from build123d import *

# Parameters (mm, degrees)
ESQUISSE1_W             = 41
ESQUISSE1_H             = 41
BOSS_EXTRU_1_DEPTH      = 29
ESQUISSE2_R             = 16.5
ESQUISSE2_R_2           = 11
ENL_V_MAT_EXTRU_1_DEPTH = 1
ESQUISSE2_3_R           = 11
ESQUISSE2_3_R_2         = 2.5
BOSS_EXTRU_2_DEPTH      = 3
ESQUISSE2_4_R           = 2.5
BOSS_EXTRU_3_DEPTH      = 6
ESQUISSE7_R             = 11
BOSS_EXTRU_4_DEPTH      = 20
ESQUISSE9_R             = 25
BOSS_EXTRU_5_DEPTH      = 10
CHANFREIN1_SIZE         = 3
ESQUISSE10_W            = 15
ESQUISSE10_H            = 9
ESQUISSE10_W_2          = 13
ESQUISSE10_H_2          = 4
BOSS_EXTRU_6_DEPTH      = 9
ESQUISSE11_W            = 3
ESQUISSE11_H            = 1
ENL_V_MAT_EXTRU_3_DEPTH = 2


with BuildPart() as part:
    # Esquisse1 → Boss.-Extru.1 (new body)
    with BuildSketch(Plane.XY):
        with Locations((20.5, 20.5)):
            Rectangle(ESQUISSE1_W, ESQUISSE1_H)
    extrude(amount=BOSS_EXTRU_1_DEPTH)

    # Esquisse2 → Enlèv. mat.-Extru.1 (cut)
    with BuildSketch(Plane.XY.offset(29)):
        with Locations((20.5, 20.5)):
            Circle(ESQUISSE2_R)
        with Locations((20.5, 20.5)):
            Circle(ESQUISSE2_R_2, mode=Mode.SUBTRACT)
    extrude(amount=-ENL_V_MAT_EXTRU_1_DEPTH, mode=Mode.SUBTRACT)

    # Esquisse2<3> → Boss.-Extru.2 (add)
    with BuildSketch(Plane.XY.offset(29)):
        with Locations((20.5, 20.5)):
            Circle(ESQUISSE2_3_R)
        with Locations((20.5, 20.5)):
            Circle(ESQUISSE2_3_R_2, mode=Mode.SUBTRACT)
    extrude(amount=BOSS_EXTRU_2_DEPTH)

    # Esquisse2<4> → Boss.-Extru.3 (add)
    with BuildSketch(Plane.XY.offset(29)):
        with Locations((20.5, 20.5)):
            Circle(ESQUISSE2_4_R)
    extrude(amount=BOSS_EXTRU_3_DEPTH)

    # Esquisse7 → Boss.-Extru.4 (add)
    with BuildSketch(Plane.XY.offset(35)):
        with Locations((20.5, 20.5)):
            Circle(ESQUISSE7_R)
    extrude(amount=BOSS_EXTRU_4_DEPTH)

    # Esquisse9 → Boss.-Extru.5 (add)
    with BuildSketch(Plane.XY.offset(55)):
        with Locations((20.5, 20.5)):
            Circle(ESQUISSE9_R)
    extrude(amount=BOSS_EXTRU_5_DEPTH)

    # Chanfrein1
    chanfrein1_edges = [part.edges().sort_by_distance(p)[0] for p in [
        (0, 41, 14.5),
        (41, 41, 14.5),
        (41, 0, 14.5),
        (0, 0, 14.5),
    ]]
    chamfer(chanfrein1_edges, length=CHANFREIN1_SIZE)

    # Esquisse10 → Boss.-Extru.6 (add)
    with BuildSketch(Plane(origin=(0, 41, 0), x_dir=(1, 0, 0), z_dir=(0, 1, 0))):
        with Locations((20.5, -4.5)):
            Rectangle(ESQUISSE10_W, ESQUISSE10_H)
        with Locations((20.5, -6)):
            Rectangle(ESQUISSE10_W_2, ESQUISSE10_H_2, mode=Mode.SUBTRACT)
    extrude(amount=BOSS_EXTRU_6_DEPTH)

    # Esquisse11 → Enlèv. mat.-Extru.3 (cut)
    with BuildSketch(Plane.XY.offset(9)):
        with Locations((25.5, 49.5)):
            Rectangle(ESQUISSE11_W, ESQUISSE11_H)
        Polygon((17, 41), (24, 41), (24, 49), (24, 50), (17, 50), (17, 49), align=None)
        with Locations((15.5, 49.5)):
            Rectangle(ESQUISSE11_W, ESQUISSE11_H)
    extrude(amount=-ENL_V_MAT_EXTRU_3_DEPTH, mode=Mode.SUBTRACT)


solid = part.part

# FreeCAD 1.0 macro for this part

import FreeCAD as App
import Part
import Sketcher
Q = App.Units.Quantity


def edges_at(feature, points):
    """Names of the edges that pass closest to the given points."""
    edges = feature.Shape.Edges
    near = lambda p: min(range(len(edges)), key=lambda i: edges[i].distToShape(Part.Vertex(*p))[0])
    return sorted({f"Edge{near(p) + 1}" for p in points})


def add_polygon(sketch, points):
    """Adds a closed chain of lines whose ends are joined by coincident constraints."""
    first, n = sketch.GeometryCount, len(points)
    for a, b in zip(points, points[1:] + points[:1]):
        sketch.addGeometry(Part.LineSegment(App.Vector(*a, 0), App.Vector(*b, 0)), False)
    for i in range(n):
        sketch.addConstraint(Sketcher.Constraint("Coincident", first + i, 2, first + (i + 1) % n, 1))

doc = App.newDocument("Part")
params = doc.addObject("Spreadsheet::Sheet", "Params")
for row, (alias, value) in enumerate([
    ("sketch1_width", "41 mm"),
    ("pad1_length", "29 mm"),
    ("sketch2_diameter", "33 mm"),
    ("sketch2_diameter2", "22 mm"),
    ("pocket1_length", "1 mm"),
    ("sketch3_diameter", "22 mm"),
    ("sketch3_diameter2", "5 mm"),
    ("pad2_length", "3 mm"),
    ("sketch4_diameter", "5 mm"),
    ("pad3_length", "6 mm"),
    ("sketch5_diameter", "22 mm"),
    ("pad4_length", "20 mm"),
    ("sketch6_diameter", "50 mm"),
    ("pad5_length", "10 mm"),
    ("chamfer_size", "3 mm"),
    ("sketch7_width", "15 mm"),
    ("sketch7_width2", "13 mm"),
    ("sketch7_height", "9 mm"),
    ("sketch7_height2", "4 mm"),
    ("pad6_length", "9 mm"),
    ("sketch8_width", "3 mm"),
    ("sketch8_width2", "13 mm"),
    ("sketch8_height", "1 mm"),
    ("sketch8_height2", "8 mm"),
    ("pocket2_length", "2 mm"),
], start=1):
    params.set(f"A{row}", alias)
    params.set(f"B{row}", "=" + value)
    params.setAlias(f"B{row}", alias)

body = doc.addObject("PartDesign::Body", "Body")

# Sketch on XY plane
sketch1 = body.newObject("Sketcher::SketchObject", "Sketch")
sketch1.AttachmentSupport = (doc.getObject("XY_Plane"), [""])
sketch1.MapMode = "FlatFace"
add_polygon(sketch1, [(0, 41), (0, 0), (41, 0), (41, 41)])  # lines 0-3
sketch1.addConstraint(Sketcher.Constraint("Vertical", 0))
sketch1.addConstraint(Sketcher.Constraint("Horizontal", 1))
sketch1.addConstraint(Sketcher.Constraint("Vertical", 2))
sketch1.addConstraint(Sketcher.Constraint("Horizontal", 3))
sketch1.addConstraint(Sketcher.Constraint("Coincident", 0, 2, -1, 1))
sketch1.addConstraint(Sketcher.Constraint("Equal", 3, 0))
sketch1.addConstraint(Sketcher.Constraint("DistanceX", 1, 1, 1, 2, Q("41 mm")))
sketch1.setExpression("Constraints[10]", "Params.sketch1_width")
pad1 = body.newObject("PartDesign::Pad", "Pad")
pad1.Profile = sketch1
pad1.setExpression("Length", "Params.pad1_length")

# Sketch on XY plane
sketch2 = body.newObject("Sketcher::SketchObject", "Sketch001")
sketch2.AttachmentSupport = (doc.getObject("XY_Plane"), [""])
sketch2.MapMode = "FlatFace"
sketch2.AttachmentOffset = App.Placement(App.Vector(0, 0, 29), App.Rotation())
sketch2.addGeometry(Part.Circle(App.Vector(20, 20, 0), App.Vector(0, 0, 1), 16), False)
sketch2.addGeometry(Part.Circle(App.Vector(20, 20, 0), App.Vector(0, 0, 1), 11), False)
sketch2.addConstraint(Sketcher.Constraint("Coincident", 1, 3, 0, 3))
sketch2.addConstraint(Sketcher.Constraint("Diameter", 0, Q("33 mm")))
sketch2.addConstraint(Sketcher.Constraint("Diameter", 1, Q("22 mm")))
sketch2.addConstraint(Sketcher.Constraint("DistanceX", -1, 1, 0, 3, Q("20.5 mm")))
sketch2.addConstraint(Sketcher.Constraint("DistanceY", -1, 1, 0, 3, Q("20.5 mm")))
sketch2.setExpression("Constraints[1]", "Params.sketch2_diameter")
sketch2.setExpression("Constraints[2]", "Params.sketch2_diameter2")
pocket1 = body.newObject("PartDesign::Pocket", "Pocket")
pocket1.Profile = sketch2
pocket1.setExpression("Length", "Params.pocket1_length")

# Sketch on XY plane
sketch3 = body.newObject("Sketcher::SketchObject", "Sketch002")
sketch3.AttachmentSupport = (doc.getObject("XY_Plane"), [""])
sketch3.MapMode = "FlatFace"
sketch3.AttachmentOffset = App.Placement(App.Vector(0, 0, 29), App.Rotation())
sketch3.addGeometry(Part.Circle(App.Vector(20.5, 20.5, 0), App.Vector(0, 0, 1), 11), False)
sketch3.addGeometry(Part.Circle(App.Vector(20.5, 20.5, 0), App.Vector(0, 0, 1), 2.5), False)
sketch3.addConstraint(Sketcher.Constraint("Coincident", 1, 3, 0, 3))
sketch3.addConstraint(Sketcher.Constraint("Diameter", 0, Q("22 mm")))
sketch3.addConstraint(Sketcher.Constraint("Diameter", 1, Q("5 mm")))
sketch3.addConstraint(Sketcher.Constraint("DistanceX", -1, 1, 0, 3, Q("20.5 mm")))
sketch3.addConstraint(Sketcher.Constraint("DistanceY", -1, 1, 0, 3, Q("20.5 mm")))
sketch3.setExpression("Constraints[1]", "Params.sketch3_diameter")
sketch3.setExpression("Constraints[2]", "Params.sketch3_diameter2")
pad2 = body.newObject("PartDesign::Pad", "Pad001")
pad2.Profile = sketch3
pad2.setExpression("Length", "Params.pad2_length")

# Sketch on XY plane
sketch4 = body.newObject("Sketcher::SketchObject", "Sketch003")
sketch4.AttachmentSupport = (doc.getObject("XY_Plane"), [""])
sketch4.MapMode = "FlatFace"
sketch4.AttachmentOffset = App.Placement(App.Vector(0, 0, 29), App.Rotation())
sketch4.addGeometry(Part.Circle(App.Vector(20.5, 20.5, 0), App.Vector(0, 0, 1), 2.5), False)
sketch4.addConstraint(Sketcher.Constraint("Diameter", 0, Q("5 mm")))
sketch4.addConstraint(Sketcher.Constraint("DistanceX", -1, 1, 0, 3, Q("20.5 mm")))
sketch4.addConstraint(Sketcher.Constraint("DistanceY", -1, 1, 0, 3, Q("20.5 mm")))
sketch4.setExpression("Constraints[0]", "Params.sketch4_diameter")
pad3 = body.newObject("PartDesign::Pad", "Pad002")
pad3.Profile = sketch4
pad3.setExpression("Length", "Params.pad3_length")

# Sketch on XY plane
sketch5 = body.newObject("Sketcher::SketchObject", "Sketch004")
sketch5.AttachmentSupport = (doc.getObject("XY_Plane"), [""])
sketch5.MapMode = "FlatFace"
sketch5.AttachmentOffset = App.Placement(App.Vector(0, 0, 35), App.Rotation())
sketch5.addGeometry(Part.Circle(App.Vector(20, 20, 0), App.Vector(0, 0, 1), 11), False)
sketch5.addConstraint(Sketcher.Constraint("Diameter", 0, Q("22 mm")))
sketch5.addConstraint(Sketcher.Constraint("DistanceX", -1, 1, 0, 3, Q("20.5 mm")))
sketch5.addConstraint(Sketcher.Constraint("DistanceY", -1, 1, 0, 3, Q("20.5 mm")))
sketch5.setExpression("Constraints[0]", "Params.sketch5_diameter")
pad4 = body.newObject("PartDesign::Pad", "Pad003")
pad4.Profile = sketch5
pad4.setExpression("Length", "Params.pad4_length")

# Sketch on XY plane
sketch6 = body.newObject("Sketcher::SketchObject", "Sketch005")
sketch6.AttachmentSupport = (doc.getObject("XY_Plane"), [""])
sketch6.MapMode = "FlatFace"
sketch6.AttachmentOffset = App.Placement(App.Vector(0, 0, 55), App.Rotation())
sketch6.addGeometry(Part.Circle(App.Vector(20, 20, 0), App.Vector(0, 0, 1), 25), False)
sketch6.addConstraint(Sketcher.Constraint("Diameter", 0, Q("50 mm")))
sketch6.addConstraint(Sketcher.Constraint("DistanceX", -1, 1, 0, 3, Q("20.5 mm")))
sketch6.addConstraint(Sketcher.Constraint("DistanceY", -1, 1, 0, 3, Q("20.5 mm")))
sketch6.setExpression("Constraints[0]", "Params.sketch6_diameter")
pad5 = body.newObject("PartDesign::Pad", "Pad004")
pad5.Profile = sketch6
pad5.setExpression("Length", "Params.pad5_length")
doc.recompute()

chamfer = body.newObject("PartDesign::Chamfer", "Chamfer")
chamfer.Base = (pad5, edges_at(pad5, [
    (0, 41, 14.5),
    (41, 41, 14.5),
    (41, 0, 14.5),
    (0, 0, 14.5),
]))
chamfer.setExpression("Size", "Params.chamfer_size")

# Sketch on XZ plane
sketch7 = body.newObject("Sketcher::SketchObject", "Sketch006")
sketch7.AttachmentSupport = (doc.getObject("XZ_Plane"), [""])
sketch7.MapMode = "FlatFace"
sketch7.AttachmentOffset = App.Placement(App.Vector(0, 0, -41), App.Rotation())
add_polygon(sketch7, [(13, 0), (13, 9), (28, 9), (28, 0)])  # lines 0-3
add_polygon(sketch7, [(27, 8), (14, 8), (14, 4), (27, 4)])  # lines 4-7
sketch7.addConstraint(Sketcher.Constraint("Vertical", 0))
sketch7.addConstraint(Sketcher.Constraint("Horizontal", 1))
sketch7.addConstraint(Sketcher.Constraint("Vertical", 2))
sketch7.addConstraint(Sketcher.Constraint("Horizontal", 3))
sketch7.addConstraint(Sketcher.Constraint("Horizontal", 4))
sketch7.addConstraint(Sketcher.Constraint("Vertical", 5))
sketch7.addConstraint(Sketcher.Constraint("Horizontal", 6))
sketch7.addConstraint(Sketcher.Constraint("Vertical", 7))
sketch7.addConstraint(Sketcher.Constraint("PointOnObject", 2, 2, -1))
sketch7.addConstraint(Sketcher.Constraint("DistanceX", 1, 1, 1, 2, Q("15 mm")))
sketch7.addConstraint(Sketcher.Constraint("DistanceX", 4, 2, 4, 1, Q("13 mm")))
sketch7.addConstraint(Sketcher.Constraint("DistanceY", 0, 1, 0, 2, Q("9 mm")))
sketch7.addConstraint(Sketcher.Constraint("DistanceY", 5, 2, 5, 1, Q("4 mm")))
sketch7.addConstraint(Sketcher.Constraint("DistanceX", -1, 1, 0, 2, Q("13 mm")))
sketch7.addConstraint(Sketcher.Constraint("DistanceX", -1, 1, 4, 2, Q("14 mm")))
sketch7.addConstraint(Sketcher.Constraint("DistanceY", -1, 1, 4, 2, Q("8 mm")))
sketch7.setExpression("Constraints[17]", "Params.sketch7_width")
sketch7.setExpression("Constraints[18]", "Params.sketch7_width2")
sketch7.setExpression("Constraints[19]", "Params.sketch7_height")
sketch7.setExpression("Constraints[20]", "Params.sketch7_height2")
pad6 = body.newObject("PartDesign::Pad", "Pad005")
pad6.Profile = sketch7
pad6.setExpression("Length", "Params.pad6_length")
pad6.Reversed = True

# Sketch on XY plane
sketch8 = body.newObject("Sketcher::SketchObject", "Sketch007")
sketch8.AttachmentSupport = (doc.getObject("XY_Plane"), [""])
sketch8.MapMode = "FlatFace"
sketch8.AttachmentOffset = App.Placement(App.Vector(0, 0, 9), App.Rotation())
add_polygon(sketch8, [(24, 49), (27, 49), (27, 50), (14, 50), (14, 49), (17, 49), (17, 41), (24, 41)])  # lines 0-7
sketch8.addConstraint(Sketcher.Constraint("Horizontal", 0))
sketch8.addConstraint(Sketcher.Constraint("Vertical", 1))
sketch8.addConstraint(Sketcher.Constraint("Horizontal", 2))
sketch8.addConstraint(Sketcher.Constraint("Vertical", 3))
sketch8.addConstraint(Sketcher.Constraint("Horizontal", 4))
sketch8.addConstraint(Sketcher.Constraint("Vertical", 5))
sketch8.addConstraint(Sketcher.Constraint("Horizontal", 6))
sketch8.addConstraint(Sketcher.Constraint("Vertical", 7))
sketch8.addConstraint(Sketcher.Constraint("Horizontal", 0, 2, 3, 2))
sketch8.addConstraint(Sketcher.Constraint("Equal", 0, 4))
sketch8.addConstraint(Sketcher.Constraint("DistanceX", 0, 1, 0, 2, Q("3 mm")))
sketch8.addConstraint(Sketcher.Constraint("DistanceX", 2, 2, 2, 1, Q("13 mm")))
sketch8.addConstraint(Sketcher.Constraint("DistanceY", 1, 1, 1, 2, Q("1 mm")))
sketch8.addConstraint(Sketcher.Constraint("DistanceY", 5, 2, 5, 1, Q("8 mm")))
sketch8.addConstraint(Sketcher.Constraint("DistanceX", -1, 1, 0, 2, Q("27 mm")))
sketch8.addConstraint(Sketcher.Constraint("DistanceY", -1, 1, 0, 2, Q("49 mm")))
sketch8.setExpression("Constraints[18]", "Params.sketch8_width")
sketch8.setExpression("Constraints[19]", "Params.sketch8_width2")
sketch8.setExpression("Constraints[20]", "Params.sketch8_height")
sketch8.setExpression("Constraints[21]", "Params.sketch8_height2")
pocket2 = body.newObject("PartDesign::Pocket", "Pocket001")
pocket2.Profile = sketch8
pocket2.setExpression("Length", "Params.pocket2_length")

doc.recompute()
